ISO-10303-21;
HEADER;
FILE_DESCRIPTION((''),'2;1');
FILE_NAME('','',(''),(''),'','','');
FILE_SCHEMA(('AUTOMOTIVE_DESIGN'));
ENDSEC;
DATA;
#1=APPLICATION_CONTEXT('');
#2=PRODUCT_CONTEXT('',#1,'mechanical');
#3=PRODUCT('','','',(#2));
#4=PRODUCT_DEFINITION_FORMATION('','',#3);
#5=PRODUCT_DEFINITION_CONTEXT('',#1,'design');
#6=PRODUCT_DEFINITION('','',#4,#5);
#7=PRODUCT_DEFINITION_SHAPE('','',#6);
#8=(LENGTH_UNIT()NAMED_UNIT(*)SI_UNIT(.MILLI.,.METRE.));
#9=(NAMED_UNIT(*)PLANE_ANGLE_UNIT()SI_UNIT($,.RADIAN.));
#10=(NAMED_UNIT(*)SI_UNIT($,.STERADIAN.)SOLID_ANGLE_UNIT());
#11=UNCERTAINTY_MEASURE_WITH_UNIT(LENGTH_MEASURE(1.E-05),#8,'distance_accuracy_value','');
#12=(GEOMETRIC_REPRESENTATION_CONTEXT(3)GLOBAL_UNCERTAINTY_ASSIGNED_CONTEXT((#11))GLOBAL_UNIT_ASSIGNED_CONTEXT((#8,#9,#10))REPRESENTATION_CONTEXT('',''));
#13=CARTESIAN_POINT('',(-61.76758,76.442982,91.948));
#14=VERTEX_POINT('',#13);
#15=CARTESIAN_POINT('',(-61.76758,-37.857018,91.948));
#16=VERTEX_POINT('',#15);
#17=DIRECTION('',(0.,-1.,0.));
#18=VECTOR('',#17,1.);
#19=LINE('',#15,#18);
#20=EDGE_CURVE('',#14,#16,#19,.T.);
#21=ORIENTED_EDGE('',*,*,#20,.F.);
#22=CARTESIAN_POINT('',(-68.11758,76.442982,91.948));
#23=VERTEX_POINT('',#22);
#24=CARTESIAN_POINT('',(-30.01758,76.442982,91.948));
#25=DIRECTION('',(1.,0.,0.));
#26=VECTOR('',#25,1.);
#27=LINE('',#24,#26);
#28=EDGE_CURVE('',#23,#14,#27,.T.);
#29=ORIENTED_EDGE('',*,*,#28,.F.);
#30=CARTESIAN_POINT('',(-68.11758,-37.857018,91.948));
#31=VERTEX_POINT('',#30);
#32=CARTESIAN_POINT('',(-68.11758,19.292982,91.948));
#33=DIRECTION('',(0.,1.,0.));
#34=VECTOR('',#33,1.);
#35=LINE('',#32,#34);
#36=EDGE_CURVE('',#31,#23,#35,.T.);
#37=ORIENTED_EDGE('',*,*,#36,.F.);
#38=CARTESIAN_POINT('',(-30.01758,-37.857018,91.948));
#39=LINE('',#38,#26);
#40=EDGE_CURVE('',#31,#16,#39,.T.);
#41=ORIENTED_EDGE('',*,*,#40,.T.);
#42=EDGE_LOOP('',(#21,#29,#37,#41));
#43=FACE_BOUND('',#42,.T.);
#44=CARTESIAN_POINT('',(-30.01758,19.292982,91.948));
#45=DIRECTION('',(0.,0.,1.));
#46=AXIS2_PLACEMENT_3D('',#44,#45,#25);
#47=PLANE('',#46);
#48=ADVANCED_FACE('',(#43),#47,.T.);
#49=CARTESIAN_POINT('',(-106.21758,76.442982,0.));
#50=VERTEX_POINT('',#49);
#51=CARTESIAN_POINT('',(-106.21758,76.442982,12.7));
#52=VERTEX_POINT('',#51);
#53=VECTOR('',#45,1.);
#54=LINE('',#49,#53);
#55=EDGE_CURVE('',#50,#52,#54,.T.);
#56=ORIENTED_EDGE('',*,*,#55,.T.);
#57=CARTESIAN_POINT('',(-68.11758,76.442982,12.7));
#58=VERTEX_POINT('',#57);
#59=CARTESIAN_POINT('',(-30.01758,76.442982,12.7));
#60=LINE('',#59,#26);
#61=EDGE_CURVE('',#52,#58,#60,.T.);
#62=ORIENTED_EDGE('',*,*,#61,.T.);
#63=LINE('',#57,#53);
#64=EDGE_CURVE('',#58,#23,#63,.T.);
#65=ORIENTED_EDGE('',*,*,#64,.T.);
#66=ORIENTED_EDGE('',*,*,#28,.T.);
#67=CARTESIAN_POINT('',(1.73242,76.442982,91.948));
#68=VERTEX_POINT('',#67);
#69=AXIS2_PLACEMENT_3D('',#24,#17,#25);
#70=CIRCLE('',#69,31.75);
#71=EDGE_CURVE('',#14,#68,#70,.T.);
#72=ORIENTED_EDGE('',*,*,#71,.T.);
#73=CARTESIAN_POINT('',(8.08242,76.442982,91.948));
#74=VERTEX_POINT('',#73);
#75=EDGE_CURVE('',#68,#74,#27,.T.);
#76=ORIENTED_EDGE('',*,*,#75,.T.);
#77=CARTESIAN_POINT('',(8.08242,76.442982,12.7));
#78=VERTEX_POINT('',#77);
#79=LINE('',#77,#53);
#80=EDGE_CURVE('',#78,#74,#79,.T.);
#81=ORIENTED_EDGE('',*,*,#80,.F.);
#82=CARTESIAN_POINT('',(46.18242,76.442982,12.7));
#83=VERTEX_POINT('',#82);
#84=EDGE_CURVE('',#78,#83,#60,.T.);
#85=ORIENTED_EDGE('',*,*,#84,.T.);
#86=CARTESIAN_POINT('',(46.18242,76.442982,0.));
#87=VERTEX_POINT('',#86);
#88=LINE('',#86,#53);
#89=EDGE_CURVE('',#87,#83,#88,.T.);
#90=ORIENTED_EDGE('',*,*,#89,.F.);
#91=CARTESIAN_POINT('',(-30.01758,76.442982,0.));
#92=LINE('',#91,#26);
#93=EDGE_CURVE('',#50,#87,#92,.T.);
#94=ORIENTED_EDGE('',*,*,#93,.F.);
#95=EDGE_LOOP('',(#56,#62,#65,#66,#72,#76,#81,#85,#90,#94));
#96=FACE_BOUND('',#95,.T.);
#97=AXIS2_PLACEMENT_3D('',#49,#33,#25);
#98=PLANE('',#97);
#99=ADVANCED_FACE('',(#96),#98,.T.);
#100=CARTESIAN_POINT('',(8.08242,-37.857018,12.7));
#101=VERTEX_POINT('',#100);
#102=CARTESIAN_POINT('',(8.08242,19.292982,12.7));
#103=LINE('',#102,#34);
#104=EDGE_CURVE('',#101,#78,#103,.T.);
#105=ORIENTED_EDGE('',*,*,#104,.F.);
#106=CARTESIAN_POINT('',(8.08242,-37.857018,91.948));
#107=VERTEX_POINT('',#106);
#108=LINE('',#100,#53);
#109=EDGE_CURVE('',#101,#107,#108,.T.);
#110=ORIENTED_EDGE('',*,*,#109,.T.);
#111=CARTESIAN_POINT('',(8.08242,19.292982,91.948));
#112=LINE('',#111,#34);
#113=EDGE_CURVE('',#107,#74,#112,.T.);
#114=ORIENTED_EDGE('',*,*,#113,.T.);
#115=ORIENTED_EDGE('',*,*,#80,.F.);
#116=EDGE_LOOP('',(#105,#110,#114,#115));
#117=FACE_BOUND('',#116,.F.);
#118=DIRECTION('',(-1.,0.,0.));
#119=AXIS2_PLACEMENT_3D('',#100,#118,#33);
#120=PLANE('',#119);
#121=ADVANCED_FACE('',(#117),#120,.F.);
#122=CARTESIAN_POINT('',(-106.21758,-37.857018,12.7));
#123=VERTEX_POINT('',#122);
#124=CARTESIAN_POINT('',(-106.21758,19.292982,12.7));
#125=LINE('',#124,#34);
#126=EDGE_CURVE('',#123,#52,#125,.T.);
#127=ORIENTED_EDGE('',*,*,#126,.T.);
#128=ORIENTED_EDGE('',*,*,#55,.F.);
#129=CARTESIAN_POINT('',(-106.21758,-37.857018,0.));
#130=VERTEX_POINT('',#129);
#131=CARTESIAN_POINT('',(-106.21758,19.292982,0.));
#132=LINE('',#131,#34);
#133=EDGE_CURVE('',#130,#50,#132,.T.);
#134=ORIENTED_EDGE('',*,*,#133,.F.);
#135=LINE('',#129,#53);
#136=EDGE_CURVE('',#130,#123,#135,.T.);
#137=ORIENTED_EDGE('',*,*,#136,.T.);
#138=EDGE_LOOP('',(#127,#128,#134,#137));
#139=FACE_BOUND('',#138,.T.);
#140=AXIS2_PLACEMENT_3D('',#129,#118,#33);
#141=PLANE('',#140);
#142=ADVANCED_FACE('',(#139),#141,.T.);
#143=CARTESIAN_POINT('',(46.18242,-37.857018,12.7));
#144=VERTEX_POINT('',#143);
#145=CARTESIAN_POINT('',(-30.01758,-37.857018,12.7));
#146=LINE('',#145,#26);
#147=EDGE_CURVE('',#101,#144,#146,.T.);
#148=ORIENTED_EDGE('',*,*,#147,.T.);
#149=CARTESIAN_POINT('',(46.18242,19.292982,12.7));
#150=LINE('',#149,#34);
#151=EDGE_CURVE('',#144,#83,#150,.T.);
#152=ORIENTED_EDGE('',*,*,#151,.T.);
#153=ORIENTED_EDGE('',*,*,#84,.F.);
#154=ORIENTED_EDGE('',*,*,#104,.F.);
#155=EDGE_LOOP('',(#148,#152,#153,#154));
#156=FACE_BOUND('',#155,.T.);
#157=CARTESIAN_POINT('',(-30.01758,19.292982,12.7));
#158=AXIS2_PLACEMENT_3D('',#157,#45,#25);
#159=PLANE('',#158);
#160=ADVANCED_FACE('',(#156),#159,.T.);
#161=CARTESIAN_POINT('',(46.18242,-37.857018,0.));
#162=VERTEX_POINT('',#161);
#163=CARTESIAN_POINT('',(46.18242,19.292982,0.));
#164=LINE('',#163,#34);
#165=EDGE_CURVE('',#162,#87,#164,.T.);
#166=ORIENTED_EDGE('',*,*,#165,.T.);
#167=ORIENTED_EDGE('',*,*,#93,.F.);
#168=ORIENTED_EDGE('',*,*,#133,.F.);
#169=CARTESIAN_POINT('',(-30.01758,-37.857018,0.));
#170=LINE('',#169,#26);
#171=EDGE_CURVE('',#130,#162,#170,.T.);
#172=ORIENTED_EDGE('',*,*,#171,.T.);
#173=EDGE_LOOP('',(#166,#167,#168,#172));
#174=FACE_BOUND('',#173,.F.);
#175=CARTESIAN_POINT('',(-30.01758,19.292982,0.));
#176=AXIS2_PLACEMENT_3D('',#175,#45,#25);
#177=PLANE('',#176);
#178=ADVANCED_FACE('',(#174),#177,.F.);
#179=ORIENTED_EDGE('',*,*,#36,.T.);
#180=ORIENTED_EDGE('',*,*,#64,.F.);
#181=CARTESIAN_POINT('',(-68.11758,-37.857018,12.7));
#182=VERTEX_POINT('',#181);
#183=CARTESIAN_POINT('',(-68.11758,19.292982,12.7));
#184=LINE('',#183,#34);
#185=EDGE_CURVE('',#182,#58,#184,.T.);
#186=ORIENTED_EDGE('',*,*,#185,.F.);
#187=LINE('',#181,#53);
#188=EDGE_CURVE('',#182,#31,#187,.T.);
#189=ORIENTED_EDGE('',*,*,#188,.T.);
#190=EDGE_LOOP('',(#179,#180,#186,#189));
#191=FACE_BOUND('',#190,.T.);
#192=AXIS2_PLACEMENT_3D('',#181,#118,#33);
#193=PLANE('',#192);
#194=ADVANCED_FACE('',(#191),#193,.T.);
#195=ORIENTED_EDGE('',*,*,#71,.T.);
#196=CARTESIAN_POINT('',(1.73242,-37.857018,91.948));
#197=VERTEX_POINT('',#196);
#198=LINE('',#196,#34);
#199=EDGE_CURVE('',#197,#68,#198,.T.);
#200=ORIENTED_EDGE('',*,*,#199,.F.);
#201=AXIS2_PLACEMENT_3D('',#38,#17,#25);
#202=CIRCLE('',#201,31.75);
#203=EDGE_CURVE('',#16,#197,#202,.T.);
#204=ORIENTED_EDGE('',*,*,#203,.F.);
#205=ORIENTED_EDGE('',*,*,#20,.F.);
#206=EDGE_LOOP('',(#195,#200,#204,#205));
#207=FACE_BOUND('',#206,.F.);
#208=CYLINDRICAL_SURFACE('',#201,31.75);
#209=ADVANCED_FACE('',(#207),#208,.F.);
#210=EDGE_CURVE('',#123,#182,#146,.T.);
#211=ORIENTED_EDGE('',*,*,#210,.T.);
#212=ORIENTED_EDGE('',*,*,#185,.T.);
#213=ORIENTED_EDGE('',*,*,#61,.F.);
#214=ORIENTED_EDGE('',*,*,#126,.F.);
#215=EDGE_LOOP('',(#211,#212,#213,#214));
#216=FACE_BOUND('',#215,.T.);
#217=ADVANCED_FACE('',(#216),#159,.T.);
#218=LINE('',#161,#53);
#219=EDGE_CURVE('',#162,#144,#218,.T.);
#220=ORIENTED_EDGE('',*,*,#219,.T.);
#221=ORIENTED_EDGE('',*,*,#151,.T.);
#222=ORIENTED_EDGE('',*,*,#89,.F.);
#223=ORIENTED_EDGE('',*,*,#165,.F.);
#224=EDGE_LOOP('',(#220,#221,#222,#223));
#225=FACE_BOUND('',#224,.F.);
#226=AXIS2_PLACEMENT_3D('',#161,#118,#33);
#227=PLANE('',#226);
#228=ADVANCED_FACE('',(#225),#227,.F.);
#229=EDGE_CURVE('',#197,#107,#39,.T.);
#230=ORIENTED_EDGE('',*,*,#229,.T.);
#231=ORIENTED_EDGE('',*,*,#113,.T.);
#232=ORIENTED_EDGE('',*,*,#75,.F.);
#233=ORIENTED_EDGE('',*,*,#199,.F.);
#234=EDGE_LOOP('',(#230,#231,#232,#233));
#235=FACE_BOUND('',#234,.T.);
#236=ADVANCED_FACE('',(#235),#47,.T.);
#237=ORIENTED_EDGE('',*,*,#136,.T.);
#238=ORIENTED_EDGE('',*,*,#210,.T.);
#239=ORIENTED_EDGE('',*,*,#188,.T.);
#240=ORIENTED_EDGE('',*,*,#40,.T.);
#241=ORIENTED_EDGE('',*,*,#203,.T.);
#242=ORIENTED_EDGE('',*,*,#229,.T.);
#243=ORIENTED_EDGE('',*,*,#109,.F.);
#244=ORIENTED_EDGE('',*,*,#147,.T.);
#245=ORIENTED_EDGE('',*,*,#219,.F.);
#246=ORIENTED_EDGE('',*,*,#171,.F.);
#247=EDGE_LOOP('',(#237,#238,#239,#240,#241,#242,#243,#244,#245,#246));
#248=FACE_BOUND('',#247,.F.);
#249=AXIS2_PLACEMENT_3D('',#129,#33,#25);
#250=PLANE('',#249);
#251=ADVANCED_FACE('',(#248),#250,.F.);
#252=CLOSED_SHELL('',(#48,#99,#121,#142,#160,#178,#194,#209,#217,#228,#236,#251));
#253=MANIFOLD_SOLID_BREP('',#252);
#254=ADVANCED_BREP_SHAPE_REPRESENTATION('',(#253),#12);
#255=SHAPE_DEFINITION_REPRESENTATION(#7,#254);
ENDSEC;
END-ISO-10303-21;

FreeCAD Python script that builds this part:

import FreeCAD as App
import Part
import Sketcher

V = App.Vector
Q = App.Units.Quantity

doc = App.newDocument("Part")
params = doc.addObject("Spreadsheet::Sheet", "Params")
for row, (alias, value) in enumerate([
    ("sketch1_width", "6 in"),
    ("sketch1_height", "4.5 in"),
    ("pad1_length", "0.5 in"),
    ("sketch2_width", "3 in"),
    ("sketch2_height", "4.5 in"),
    ("pad2_length", "3.12 in"),
    ("sketch3_diameter", "2.5 in"),
], start=1):
    params.set(f"A{row}", alias)
    params.set(f"B{row}", "=" + value)
    params.setAlias(f"B{row}", alias)

body = doc.addObject("PartDesign::Body", "Body")

# Sketch on XY plane
sketch1 = doc.addObject("Sketcher::SketchObject", "Sketch")
body.addObject(sketch1)
sketch1.AttachmentSupport = (doc.XY_Plane, [""])
sketch1.MapMode = "FlatFace"
sketch1.addGeometry(Part.LineSegment(V(-106, 76, 0), V(-106, -38, 0)), False)
sketch1.addGeometry(Part.LineSegment(V(-106, -38, 0), V(46, -38, 0)), False)
sketch1.addGeometry(Part.LineSegment(V(46, -38, 0), V(46, 76, 0)), False)
sketch1.addGeometry(Part.LineSegment(V(46, 76, 0), V(-106, 76, 0)), False)
sketch1.addConstraint(Sketcher.Constraint("Coincident", 0, 2, 1, 1))
sketch1.addConstraint(Sketcher.Constraint("Coincident", 1, 2, 2, 1))
sketch1.addConstraint(Sketcher.Constraint("Coincident", 2, 2, 3, 1))
sketch1.addConstraint(Sketcher.Constraint("Coincident", 3, 2, 0, 1))
sketch1.addConstraint(Sketcher.Constraint("Vertical", 0))
sketch1.addConstraint(Sketcher.Constraint("Horizontal", 1))
sketch1.addConstraint(Sketcher.Constraint("Vertical", 2))
sketch1.addConstraint(Sketcher.Constraint("Horizontal", 3))
sketch1.addConstraint(Sketcher.Constraint("DistanceX", 1, 1, 1, 2, Q("6 in")))
sketch1.addConstraint(Sketcher.Constraint("DistanceY", 0, 2, 0, 1, Q("4.5 in")))
sketch1.addConstraint(Sketcher.Constraint("DistanceX", 0, 2, -1, 1, 106.21758))
sketch1.addConstraint(Sketcher.Constraint("DistanceY", -1, 1, 2, 2, 76.442982))
sketch1.setExpression("Constraints[8]", "Params.sketch1_width")
sketch1.setExpression("Constraints[9]", "Params.sketch1_height")
pad1 = doc.addObject("PartDesign::Pad", "Pad")
body.addObject(pad1)
pad1.Profile = sketch1
pad1.setExpression("Length", "Params.pad1_length")

# Sketch on XY plane
sketch2 = doc.addObject("Sketcher::SketchObject", "Sketch001")
body.addObject(sketch2)
sketch2.AttachmentSupport = (doc.XY_Plane, [""])
sketch2.MapMode = "FlatFace"
sketch2.AttachmentOffset = App.Placement(V(0, 0, 0.5 * 25.4), App.Rotation())
sketch2.addGeometry(Part.LineSegment(V(-68, 76, 0), V(-68, -38, 0)), False)
sketch2.addGeometry(Part.LineSegment(V(-68, -38, 0), V(8, -38, 0)), False)
sketch2.addGeometry(Part.LineSegment(V(8, -38, 0), V(8, 76, 0)), False)
sketch2.addGeometry(Part.LineSegment(V(8, 76, 0), V(-68, 76, 0)), False)
sketch2.addConstraint(Sketcher.Constraint("Coincident", 0, 2, 1, 1))
sketch2.addConstraint(Sketcher.Constraint("Coincident", 1, 2, 2, 1))
sketch2.addConstraint(Sketcher.Constraint("Coincident", 2, 2, 3, 1))
sketch2.addConstraint(Sketcher.Constraint("Coincident", 3, 2, 0, 1))
sketch2.addConstraint(Sketcher.Constraint("Vertical", 0))
sketch2.addConstraint(Sketcher.Constraint("Horizontal", 1))
sketch2.addConstraint(Sketcher.Constraint("Vertical", 2))
sketch2.addConstraint(Sketcher.Constraint("Horizontal", 3))
sketch2.addConstraint(Sketcher.Constraint("DistanceX", 1, 1, 1, 2, Q("3 in")))
sketch2.addConstraint(Sketcher.Constraint("DistanceY", 0, 2, 0, 1, Q("4.5 in")))
sketch2.addConstraint(Sketcher.Constraint("DistanceX", 0, 2, -1, 1, 68.11758))
sketch2.addConstraint(Sketcher.Constraint("DistanceY", -1, 1, 2, 2, 76.442982))
sketch2.setExpression("Constraints[8]", "Params.sketch2_width")
sketch2.setExpression("Constraints[9]", "Params.sketch2_height")
pad2 = doc.addObject("PartDesign::Pad", "Pad001")
body.addObject(pad2)
pad2.Profile = sketch2
pad2.setExpression("Length", "Params.pad2_length")

# Sketch on XZ plane
sketch3 = doc.addObject("Sketcher::SketchObject", "Sketch002")
body.addObject(sketch3)
sketch3.AttachmentSupport = (doc.XZ_Plane, [""])
sketch3.MapMode = "FlatFace"
sketch3.AttachmentOffset = App.Placement(V(0, 0, 37.857018), App.Rotation())
sketch3.addGeometry(Part.Circle(V(-30, 92, 0), V(0, 0, 1), 32), False)
sketch3.addConstraint(Sketcher.Constraint("Diameter", 0, Q("2.5 in")))
sketch3.addConstraint(Sketcher.Constraint("DistanceY", -1, 1, 0, 3, Q("3.62 in")))
sketch3.addConstraint(Sketcher.Constraint("DistanceX", 0, 3, -1, 1, 30.01758))
sketch3.setExpression("Constraints[0]", "Params.sketch3_diameter")
pocket1 = doc.addObject("PartDesign::Pocket", "Pocket")
body.addObject(pocket1)
pocket1.Profile = sketch3
pocket1.Type = "ThroughAll"

doc.recompute()
